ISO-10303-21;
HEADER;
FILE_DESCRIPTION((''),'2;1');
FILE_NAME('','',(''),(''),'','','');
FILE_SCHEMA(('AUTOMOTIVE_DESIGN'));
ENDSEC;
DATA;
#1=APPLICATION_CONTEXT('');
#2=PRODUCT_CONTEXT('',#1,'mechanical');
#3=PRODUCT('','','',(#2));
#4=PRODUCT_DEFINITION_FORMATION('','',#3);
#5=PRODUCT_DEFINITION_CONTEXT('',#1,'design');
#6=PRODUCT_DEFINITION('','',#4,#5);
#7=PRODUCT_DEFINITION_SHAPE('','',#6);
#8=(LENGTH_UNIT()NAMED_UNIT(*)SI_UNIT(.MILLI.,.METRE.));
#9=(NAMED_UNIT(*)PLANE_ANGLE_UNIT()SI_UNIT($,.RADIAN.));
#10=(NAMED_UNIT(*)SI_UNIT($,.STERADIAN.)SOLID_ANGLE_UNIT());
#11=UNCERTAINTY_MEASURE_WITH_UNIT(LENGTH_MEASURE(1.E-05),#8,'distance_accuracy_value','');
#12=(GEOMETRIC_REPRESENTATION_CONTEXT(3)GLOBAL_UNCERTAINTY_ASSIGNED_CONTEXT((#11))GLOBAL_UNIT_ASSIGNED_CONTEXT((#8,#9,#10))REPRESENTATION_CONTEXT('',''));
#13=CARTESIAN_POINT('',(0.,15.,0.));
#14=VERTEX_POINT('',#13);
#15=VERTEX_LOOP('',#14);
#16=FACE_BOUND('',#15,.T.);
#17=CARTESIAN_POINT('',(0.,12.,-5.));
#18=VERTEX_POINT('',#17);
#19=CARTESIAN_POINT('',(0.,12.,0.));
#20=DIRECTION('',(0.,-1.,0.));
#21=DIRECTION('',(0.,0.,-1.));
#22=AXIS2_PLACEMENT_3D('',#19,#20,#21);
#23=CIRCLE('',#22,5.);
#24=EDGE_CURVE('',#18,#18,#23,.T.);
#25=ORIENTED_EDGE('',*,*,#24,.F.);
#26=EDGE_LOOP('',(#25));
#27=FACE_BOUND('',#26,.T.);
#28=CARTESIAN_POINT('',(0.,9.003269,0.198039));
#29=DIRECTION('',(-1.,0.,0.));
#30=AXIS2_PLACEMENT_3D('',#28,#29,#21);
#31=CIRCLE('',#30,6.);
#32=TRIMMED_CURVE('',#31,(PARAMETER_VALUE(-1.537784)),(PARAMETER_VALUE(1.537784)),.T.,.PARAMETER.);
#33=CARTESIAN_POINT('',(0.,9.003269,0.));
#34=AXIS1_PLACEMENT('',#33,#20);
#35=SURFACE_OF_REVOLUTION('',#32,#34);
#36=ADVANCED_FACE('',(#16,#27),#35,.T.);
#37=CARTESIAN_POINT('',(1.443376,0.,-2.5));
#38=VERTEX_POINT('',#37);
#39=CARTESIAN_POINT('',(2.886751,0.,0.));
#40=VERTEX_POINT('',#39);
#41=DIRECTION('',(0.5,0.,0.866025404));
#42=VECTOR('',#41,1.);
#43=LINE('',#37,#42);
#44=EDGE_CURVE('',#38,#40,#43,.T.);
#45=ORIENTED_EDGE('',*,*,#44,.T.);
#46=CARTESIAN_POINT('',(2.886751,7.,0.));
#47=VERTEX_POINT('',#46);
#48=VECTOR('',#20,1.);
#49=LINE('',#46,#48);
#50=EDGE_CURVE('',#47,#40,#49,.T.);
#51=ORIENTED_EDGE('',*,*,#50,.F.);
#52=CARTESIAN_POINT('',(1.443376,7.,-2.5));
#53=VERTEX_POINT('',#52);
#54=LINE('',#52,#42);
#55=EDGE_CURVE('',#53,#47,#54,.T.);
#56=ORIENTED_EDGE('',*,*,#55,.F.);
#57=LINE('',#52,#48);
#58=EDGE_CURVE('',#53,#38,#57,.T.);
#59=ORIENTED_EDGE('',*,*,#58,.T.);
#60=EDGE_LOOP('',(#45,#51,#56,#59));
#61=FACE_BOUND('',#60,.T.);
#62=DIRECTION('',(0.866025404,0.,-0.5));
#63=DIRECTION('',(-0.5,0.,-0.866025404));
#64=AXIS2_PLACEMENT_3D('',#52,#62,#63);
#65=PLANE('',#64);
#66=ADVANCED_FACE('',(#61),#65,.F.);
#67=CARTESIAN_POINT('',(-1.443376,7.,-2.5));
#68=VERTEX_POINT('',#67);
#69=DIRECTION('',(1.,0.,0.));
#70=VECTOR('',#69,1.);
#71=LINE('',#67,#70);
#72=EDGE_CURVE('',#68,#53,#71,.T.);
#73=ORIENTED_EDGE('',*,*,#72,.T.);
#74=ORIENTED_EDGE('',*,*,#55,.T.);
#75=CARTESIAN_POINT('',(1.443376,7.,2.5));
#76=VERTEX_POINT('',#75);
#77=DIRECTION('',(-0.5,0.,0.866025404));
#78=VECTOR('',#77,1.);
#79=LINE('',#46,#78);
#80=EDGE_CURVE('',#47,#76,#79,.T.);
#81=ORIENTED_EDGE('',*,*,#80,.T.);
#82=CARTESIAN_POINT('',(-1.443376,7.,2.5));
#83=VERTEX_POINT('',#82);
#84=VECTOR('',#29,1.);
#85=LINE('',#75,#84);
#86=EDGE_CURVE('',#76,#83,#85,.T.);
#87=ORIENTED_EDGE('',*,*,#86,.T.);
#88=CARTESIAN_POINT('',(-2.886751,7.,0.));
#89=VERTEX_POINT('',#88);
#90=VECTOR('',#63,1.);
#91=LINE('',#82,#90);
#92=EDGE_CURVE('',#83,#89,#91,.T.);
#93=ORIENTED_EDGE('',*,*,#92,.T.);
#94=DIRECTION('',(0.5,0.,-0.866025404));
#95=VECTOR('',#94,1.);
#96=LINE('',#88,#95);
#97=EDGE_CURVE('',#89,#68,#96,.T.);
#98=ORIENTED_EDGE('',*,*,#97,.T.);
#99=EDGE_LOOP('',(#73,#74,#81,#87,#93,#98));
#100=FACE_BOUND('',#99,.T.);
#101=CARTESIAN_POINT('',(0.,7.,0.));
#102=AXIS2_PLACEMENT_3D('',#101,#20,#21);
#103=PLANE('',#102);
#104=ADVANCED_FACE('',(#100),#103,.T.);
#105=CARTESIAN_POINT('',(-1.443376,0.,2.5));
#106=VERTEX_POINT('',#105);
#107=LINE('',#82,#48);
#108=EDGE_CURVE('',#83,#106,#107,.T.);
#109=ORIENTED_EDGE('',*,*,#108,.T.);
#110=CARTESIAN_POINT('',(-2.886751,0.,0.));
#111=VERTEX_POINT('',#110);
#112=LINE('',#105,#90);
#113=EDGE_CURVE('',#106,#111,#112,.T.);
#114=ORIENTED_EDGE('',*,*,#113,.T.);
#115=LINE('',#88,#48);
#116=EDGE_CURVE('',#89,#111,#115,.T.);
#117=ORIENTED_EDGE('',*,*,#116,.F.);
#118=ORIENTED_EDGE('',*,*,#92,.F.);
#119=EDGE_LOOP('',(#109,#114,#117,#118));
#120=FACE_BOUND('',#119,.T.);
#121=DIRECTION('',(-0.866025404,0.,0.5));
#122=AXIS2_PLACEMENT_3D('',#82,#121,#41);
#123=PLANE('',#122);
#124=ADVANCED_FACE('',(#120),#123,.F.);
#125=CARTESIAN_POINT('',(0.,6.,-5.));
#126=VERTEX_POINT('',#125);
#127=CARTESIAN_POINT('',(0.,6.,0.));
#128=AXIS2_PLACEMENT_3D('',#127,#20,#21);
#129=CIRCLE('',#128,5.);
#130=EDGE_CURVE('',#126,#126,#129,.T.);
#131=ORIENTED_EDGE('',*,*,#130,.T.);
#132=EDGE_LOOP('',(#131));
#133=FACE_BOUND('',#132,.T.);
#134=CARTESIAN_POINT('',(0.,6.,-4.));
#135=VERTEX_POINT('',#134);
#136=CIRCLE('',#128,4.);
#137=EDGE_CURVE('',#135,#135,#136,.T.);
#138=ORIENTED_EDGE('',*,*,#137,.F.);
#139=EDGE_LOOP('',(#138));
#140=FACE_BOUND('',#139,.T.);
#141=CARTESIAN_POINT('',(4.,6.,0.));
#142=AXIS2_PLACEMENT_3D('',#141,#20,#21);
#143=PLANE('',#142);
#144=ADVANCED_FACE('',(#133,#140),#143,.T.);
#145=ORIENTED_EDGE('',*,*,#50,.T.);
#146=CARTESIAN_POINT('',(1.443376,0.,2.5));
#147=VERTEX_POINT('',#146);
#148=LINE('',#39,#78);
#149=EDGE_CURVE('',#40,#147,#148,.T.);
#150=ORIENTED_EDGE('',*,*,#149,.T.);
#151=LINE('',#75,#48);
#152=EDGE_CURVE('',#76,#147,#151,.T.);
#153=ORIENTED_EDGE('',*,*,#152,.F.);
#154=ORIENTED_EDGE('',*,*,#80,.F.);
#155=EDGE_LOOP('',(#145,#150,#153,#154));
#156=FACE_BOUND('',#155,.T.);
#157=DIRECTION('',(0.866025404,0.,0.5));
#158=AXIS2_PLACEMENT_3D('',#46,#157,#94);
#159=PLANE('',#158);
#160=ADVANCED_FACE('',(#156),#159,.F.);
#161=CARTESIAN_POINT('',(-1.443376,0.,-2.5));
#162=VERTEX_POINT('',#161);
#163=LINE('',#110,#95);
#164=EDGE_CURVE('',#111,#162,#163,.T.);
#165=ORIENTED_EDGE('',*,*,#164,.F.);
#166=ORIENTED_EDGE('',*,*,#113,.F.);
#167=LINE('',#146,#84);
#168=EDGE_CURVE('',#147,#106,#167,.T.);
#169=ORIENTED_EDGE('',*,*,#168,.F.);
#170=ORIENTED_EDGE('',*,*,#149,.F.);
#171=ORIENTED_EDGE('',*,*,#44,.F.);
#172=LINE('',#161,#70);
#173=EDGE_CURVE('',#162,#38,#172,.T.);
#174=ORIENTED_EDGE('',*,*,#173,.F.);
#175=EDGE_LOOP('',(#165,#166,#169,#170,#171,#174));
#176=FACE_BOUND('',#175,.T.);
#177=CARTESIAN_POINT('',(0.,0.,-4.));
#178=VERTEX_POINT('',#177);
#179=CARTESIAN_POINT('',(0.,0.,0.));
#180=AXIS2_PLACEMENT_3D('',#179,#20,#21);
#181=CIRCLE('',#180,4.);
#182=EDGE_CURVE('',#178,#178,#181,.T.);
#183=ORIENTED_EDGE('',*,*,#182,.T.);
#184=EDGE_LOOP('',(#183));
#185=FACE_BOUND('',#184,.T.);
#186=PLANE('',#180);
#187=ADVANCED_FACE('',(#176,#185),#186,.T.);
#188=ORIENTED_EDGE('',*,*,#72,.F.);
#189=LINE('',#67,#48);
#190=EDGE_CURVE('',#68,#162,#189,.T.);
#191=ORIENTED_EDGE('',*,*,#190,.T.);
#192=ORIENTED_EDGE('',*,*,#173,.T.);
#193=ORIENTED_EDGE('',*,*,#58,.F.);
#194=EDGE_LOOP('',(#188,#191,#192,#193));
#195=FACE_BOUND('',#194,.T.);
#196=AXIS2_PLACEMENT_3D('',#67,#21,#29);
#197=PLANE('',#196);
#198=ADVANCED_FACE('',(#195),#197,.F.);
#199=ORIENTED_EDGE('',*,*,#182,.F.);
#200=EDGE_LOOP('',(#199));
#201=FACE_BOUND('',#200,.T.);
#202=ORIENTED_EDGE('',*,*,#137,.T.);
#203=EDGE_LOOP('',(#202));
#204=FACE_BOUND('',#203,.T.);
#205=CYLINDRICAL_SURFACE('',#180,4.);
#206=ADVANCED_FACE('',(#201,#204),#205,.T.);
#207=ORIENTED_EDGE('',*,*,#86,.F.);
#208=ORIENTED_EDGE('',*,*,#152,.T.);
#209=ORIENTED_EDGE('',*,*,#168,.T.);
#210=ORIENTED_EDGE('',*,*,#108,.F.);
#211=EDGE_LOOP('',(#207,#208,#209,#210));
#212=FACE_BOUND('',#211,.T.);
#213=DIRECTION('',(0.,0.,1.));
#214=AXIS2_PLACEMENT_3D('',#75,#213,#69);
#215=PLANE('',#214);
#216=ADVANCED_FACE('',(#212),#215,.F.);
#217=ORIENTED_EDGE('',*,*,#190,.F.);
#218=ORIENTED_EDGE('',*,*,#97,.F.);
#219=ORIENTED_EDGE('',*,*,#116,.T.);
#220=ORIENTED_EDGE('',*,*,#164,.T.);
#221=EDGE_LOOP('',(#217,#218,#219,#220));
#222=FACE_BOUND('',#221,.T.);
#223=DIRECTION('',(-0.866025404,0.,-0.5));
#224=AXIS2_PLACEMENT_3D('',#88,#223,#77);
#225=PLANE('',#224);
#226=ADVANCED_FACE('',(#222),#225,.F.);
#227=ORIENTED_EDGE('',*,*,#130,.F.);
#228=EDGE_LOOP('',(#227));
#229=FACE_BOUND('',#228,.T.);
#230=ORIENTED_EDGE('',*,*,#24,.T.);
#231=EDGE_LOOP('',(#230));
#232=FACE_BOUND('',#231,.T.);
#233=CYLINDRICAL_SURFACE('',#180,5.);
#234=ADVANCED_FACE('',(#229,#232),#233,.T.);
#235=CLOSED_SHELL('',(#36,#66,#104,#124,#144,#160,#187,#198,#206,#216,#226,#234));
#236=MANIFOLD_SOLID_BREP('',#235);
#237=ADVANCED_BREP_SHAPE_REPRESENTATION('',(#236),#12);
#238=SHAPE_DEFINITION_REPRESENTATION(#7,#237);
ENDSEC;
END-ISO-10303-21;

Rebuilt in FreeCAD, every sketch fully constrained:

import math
import FreeCAD as App
import Part
import Sketcher
Q = App.Units.Quantity

doc = App.newDocument("Part")
body = doc.addObject("PartDesign::Body", "Body")

# Sketch on XY plane
sketch1 = body.newObject("Sketcher::SketchObject", "Sketch")
sketch1.AttachmentSupport = (doc.getObject("XY_Plane"), [""])
sketch1.MapMode = "FlatFace"
sketch1.addGeometry(Part.LineSegment(App.Vector(0, 15, 0), App.Vector(0, 0, 0)), False)
sketch1.addGeometry(Part.LineSegment(App.Vector(0, 0, 0), App.Vector(4, 0, 0)), False)
sketch1.addGeometry(Part.LineSegment(App.Vector(4, 0, 0), App.Vector(4, 6, 0)), False)
sketch1.addGeometry(Part.LineSegment(App.Vector(4, 6, 0), App.Vector(5, 6, 0)), False)
sketch1.addGeometry(Part.LineSegment(App.Vector(5, 6, 0), App.Vector(5, 12, 0)), False)
sketch1.addGeometry(Part.ArcOfCircle(Part.Circle(App.Vector(-0.2, 9, 0), App.Vector(0, 0, 1), 6), math.radians(30), math.radians(88)), False)
sketch1.addConstraint(Sketcher.Constraint("Coincident", 0, 2, 1, 1))
sketch1.addConstraint(Sketcher.Constraint("Coincident", 1, 2, 2, 1))
sketch1.addConstraint(Sketcher.Constraint("Coincident", 2, 2, 3, 1))
sketch1.addConstraint(Sketcher.Constraint("Coincident", 3, 2, 4, 1))
sketch1.addConstraint(Sketcher.Constraint("Coincident", 4, 2, 5, 1))
sketch1.addConstraint(Sketcher.Constraint("Coincident", 5, 2, 0, 1))
sketch1.addConstraint(Sketcher.Constraint("Vertical", 0))
sketch1.addConstraint(Sketcher.Constraint("Horizontal", 1))
sketch1.addConstraint(Sketcher.Constraint("Vertical", 2))
sketch1.addConstraint(Sketcher.Constraint("Horizontal", 3))
sketch1.addConstraint(Sketcher.Constraint("Vertical", 4))
sketch1.addConstraint(Sketcher.Constraint("Coincident", 0, 2, -1, 1))
sketch1.addConstraint(Sketcher.Constraint("Equal", 2, 4))
sketch1.addConstraint(Sketcher.Constraint("Radius", 5, Q("6 mm")))
sketch1.addConstraint(Sketcher.Constraint("DistanceX", 1, 1, 1, 2, Q("4 mm")))
sketch1.addConstraint(Sketcher.Constraint("DistanceX", 3, 1, 3, 2, Q("1 mm")))
sketch1.addConstraint(Sketcher.Constraint("DistanceY", 0, 2, 0, 1, Q("15 mm")))
sketch1.addConstraint(Sketcher.Constraint("DistanceY", 2, 1, 2, 2, Q("6 mm")))
revolution = body.newObject("PartDesign::Revolution", "Revolution")
revolution.Profile = sketch1
revolution.ReferenceAxis = (sketch1, ["V_Axis"])
revolution.Angle = 360

# Sketch on XZ plane
sketch2 = body.newObject("Sketcher::SketchObject", "Sketch001")
sketch2.AttachmentSupport = (doc.getObject("XZ_Plane"), [""])
sketch2.MapMode = "FlatFace"
sketch2.addGeometry(Part.LineSegment(App.Vector(1.4, -2.5, 0), App.Vector(2.9, 0, 0)), False)
sketch2.addGeometry(Part.LineSegment(App.Vector(2.9, 0, 0), App.Vector(1.4, 2.5, 0)), False)
sketch2.addGeometry(Part.LineSegment(App.Vector(1.4, 2.5, 0), App.Vector(-1.4, 2.5, 0)), False)
sketch2.addGeometry(Part.LineSegment(App.Vector(-1.4, 2.5, 0), App.Vector(-2.9, 0, 0)), False)
sketch2.addGeometry(Part.LineSegment(App.Vector(-2.9, 0, 0), App.Vector(-1.4, -2.5, 0)), False)
sketch2.addGeometry(Part.LineSegment(App.Vector(-1.4, -2.5, 0), App.Vector(1.4, -2.5, 0)), False)
sketch2.addConstraint(Sketcher.Constraint("Coincident", 0, 2, 1, 1))
sketch2.addConstraint(Sketcher.Constraint("Coincident", 1, 2, 2, 1))
sketch2.addConstraint(Sketcher.Constraint("Coincident", 2, 2, 3, 1))
sketch2.addConstraint(Sketcher.Constraint("Coincident", 3, 2, 4, 1))
sketch2.addConstraint(Sketcher.Constraint("Coincident", 4, 2, 5, 1))
sketch2.addConstraint(Sketcher.Constraint("Coincident", 5, 2, 0, 1))
sketch2.addConstraint(Sketcher.Constraint("Horizontal", 2))
sketch2.addConstraint(Sketcher.Constraint("Horizontal", 5))
sketch2.addConstraint(Sketcher.Constraint("Symmetric", 0, 2, 3, 2, -1, 1))
sketch2.addConstraint(Sketcher.Constraint("Symmetric", 1, 2, 4, 2, -1, 1))
sketch2.addConstraint(Sketcher.Constraint("PointOnObject", 0, 2, -1))
sketch2.addConstraint(Sketcher.Constraint("Parallel", 0, 3))
sketch2.addConstraint(Sketcher.Constraint("Vertical", 2, 2, 4, 2))
sketch2.addConstraint(Sketcher.Constraint("Angle", 0, Q("60 deg")))
sketch2.addConstraint(Sketcher.Constraint("DistanceY", 4, 2, 2, 2, Q("5 mm")))
sketch2.addConstraint(Sketcher.Constraint("DistanceX", 2, 2, 2, 1, Q("2.886751 mm")))
pocket1 = body.newObject("PartDesign::Pocket", "Pocket")
pocket1.Profile = sketch2
pocket1.Length = 7

doc.recompute()
